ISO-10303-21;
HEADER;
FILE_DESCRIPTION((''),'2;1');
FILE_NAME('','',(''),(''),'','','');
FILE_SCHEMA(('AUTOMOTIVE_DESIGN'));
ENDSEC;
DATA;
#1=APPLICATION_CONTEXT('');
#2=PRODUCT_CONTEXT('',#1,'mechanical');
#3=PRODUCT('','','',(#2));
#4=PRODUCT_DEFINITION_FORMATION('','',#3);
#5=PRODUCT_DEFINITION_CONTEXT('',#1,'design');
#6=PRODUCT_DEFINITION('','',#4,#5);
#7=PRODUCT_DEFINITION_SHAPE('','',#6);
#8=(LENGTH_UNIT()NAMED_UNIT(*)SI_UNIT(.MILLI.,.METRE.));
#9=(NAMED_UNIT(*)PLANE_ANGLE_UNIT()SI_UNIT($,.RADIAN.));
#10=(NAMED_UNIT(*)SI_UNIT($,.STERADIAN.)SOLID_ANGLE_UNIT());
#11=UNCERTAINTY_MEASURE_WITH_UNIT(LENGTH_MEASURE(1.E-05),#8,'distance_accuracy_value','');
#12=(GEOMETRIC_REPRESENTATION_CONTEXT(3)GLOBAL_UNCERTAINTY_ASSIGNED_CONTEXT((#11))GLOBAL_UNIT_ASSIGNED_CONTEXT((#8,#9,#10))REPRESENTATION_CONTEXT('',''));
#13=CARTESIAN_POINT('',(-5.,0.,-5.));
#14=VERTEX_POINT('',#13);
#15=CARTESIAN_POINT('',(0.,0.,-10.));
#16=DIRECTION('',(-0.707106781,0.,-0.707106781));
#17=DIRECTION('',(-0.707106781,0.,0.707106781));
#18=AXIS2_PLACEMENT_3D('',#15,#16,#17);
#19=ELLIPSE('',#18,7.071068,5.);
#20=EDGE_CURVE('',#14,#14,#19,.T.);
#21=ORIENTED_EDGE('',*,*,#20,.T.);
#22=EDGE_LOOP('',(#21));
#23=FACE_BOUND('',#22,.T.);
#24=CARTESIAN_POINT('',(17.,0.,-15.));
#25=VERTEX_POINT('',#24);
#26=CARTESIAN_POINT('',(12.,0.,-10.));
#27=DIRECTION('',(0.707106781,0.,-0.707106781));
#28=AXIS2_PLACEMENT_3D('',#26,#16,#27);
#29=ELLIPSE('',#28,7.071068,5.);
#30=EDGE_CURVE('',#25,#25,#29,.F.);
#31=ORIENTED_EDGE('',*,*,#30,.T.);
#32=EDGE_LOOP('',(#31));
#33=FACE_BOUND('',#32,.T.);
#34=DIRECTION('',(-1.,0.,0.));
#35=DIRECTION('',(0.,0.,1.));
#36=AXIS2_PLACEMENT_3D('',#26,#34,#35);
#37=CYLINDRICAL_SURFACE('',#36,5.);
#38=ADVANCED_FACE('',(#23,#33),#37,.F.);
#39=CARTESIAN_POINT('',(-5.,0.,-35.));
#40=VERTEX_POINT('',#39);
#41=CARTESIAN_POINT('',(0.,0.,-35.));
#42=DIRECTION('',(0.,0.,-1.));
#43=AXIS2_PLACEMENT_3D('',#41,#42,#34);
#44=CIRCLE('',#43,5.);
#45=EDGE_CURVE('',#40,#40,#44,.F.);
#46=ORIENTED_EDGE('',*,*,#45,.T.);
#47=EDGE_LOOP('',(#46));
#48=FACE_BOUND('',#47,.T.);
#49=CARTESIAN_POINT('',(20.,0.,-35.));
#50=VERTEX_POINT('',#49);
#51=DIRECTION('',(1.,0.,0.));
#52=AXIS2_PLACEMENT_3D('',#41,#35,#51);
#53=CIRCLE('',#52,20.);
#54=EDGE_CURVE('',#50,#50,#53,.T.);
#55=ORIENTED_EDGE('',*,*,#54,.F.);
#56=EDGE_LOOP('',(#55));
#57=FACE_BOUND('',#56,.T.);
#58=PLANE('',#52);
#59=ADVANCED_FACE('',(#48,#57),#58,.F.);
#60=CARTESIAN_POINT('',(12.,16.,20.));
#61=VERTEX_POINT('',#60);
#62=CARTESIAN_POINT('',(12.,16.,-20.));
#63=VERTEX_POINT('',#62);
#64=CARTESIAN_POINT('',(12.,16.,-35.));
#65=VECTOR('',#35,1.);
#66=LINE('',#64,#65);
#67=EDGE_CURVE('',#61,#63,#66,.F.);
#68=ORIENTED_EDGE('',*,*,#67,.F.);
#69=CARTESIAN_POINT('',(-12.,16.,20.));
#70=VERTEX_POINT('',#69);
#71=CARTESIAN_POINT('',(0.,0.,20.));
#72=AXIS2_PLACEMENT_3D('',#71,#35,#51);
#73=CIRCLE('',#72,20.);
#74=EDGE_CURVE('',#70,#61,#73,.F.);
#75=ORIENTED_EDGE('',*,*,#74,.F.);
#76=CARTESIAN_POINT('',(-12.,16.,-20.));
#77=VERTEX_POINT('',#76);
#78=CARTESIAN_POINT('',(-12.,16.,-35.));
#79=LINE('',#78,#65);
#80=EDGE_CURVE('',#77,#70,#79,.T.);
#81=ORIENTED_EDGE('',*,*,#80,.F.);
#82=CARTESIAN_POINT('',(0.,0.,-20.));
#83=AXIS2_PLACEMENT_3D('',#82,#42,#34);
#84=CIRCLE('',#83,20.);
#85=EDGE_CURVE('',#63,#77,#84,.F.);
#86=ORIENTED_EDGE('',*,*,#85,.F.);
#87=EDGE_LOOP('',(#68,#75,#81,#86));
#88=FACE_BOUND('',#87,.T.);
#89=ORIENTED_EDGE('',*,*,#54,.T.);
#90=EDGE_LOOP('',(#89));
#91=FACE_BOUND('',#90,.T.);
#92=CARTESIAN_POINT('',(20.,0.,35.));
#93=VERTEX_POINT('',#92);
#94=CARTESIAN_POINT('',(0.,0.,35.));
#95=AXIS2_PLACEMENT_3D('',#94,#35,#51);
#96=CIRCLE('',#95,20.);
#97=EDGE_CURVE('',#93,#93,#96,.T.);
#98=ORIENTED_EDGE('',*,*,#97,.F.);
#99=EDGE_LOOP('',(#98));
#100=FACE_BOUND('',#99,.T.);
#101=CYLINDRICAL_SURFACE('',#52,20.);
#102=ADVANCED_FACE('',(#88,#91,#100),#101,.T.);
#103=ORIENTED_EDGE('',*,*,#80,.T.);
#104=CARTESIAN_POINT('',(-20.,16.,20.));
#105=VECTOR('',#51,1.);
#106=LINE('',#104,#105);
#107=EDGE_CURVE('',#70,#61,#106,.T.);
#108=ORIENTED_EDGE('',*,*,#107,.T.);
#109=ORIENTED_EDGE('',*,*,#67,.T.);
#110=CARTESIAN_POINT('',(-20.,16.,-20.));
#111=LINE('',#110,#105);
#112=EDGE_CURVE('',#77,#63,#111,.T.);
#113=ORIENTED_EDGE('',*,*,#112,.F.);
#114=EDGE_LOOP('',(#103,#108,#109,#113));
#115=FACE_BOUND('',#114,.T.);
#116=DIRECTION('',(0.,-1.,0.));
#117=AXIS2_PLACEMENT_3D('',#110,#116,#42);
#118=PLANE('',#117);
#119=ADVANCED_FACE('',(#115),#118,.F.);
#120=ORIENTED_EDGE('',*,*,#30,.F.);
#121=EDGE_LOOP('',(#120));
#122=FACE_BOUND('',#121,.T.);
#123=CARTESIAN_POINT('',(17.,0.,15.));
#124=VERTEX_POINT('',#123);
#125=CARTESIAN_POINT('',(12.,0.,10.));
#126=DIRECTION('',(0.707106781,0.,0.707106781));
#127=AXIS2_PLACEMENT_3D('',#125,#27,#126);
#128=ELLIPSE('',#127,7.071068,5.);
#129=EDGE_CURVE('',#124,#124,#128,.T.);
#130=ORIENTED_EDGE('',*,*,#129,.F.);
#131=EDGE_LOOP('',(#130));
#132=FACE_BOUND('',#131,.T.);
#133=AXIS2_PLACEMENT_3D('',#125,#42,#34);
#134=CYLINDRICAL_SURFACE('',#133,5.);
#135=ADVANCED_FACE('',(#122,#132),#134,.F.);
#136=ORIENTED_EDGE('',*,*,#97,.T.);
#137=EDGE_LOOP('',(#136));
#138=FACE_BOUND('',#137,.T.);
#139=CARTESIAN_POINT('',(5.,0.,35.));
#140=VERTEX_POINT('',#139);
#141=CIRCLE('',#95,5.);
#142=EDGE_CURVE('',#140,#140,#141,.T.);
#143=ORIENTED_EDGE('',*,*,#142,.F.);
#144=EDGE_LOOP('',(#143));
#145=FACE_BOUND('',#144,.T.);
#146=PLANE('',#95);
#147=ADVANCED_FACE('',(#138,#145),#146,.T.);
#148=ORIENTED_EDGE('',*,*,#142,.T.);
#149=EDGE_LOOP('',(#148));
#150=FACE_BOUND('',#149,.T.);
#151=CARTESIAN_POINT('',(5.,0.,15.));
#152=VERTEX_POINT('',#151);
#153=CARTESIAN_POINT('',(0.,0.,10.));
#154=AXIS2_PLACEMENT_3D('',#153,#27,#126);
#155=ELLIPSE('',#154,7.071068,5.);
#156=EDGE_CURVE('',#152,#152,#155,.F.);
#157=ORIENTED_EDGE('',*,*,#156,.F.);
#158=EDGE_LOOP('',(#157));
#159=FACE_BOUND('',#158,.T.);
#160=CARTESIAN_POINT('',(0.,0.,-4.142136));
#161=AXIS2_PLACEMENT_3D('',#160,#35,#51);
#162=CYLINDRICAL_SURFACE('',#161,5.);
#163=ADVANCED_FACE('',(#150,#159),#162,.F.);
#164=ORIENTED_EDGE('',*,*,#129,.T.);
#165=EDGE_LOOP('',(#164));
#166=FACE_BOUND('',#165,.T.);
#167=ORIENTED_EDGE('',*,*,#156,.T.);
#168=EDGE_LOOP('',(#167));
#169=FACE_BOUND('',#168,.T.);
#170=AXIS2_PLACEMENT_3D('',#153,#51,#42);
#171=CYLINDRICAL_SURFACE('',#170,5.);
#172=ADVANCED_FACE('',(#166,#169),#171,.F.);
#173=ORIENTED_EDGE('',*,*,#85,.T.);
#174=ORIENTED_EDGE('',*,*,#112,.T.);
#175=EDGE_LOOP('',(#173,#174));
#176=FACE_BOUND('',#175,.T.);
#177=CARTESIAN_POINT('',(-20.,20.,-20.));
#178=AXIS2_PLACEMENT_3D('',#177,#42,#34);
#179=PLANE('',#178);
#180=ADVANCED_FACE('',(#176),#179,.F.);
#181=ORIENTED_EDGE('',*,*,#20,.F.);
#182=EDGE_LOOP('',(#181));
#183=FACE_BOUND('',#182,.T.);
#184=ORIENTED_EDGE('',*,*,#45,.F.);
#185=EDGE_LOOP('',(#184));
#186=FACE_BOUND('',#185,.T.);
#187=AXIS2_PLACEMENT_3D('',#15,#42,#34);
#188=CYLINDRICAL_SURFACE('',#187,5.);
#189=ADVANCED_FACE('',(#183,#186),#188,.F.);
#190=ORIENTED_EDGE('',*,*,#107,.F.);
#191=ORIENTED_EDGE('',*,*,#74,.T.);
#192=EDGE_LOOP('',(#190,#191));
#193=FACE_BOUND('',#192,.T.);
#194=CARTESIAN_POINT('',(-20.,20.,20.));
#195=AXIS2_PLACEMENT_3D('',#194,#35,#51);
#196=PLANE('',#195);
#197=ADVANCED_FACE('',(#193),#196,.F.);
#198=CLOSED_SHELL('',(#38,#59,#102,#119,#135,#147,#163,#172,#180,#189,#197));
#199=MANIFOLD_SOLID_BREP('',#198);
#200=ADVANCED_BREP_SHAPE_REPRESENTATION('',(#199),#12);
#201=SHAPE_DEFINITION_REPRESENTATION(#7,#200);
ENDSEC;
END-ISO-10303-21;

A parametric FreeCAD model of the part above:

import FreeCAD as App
import Part
import Sketcher
Q = App.Units.Quantity

doc = App.newDocument("Part")
body = doc.addObject("PartDesign::Body", "Body")

sketch1 = doc.addObject("Sketcher::SketchObject", "Sketch")
body.addObject(sketch1)
sketch1.AttachmentSupport = (doc.XY_Plane, [""])
sketch1.MapMode = "FlatFace"
sketch1.addGeometry(Part.Circle(App.Vector(0, 0, 0), App.Vector(0, 0, 1), 20), False)
sketch1.addConstraint([
    Sketcher.Constraint("Coincident", 0, 3, -1, 1),
    Sketcher.Constraint("Diameter", 0, Q("40 mm")),
])
pad1 = doc.addObject("PartDesign::Pad", "Pad")
body.addObject(pad1)
pad1.Profile = sketch1
pad1.Length = 70
pad1.Midplane = True

sketch2 = doc.addObject("Sketcher::SketchObject", "Sketch001")
body.addObject(sketch2)
sketch2.AttachmentSupport = (doc.XY_Plane, [""])
sketch2.MapMode = "FlatFace"
sketch2.AttachmentOffset = App.Placement(App.Vector(0, 0, 35), App.Rotation())
sketch2.addGeometry(Part.Circle(App.Vector(0, 0, 0), App.Vector(0, 0, 1), 5), False)
sketch2.addConstraint([
    Sketcher.Constraint("Coincident", 0, 3, -1, 1),
    Sketcher.Constraint("Diameter", 0, Q("10 mm")),
])

sketch3 = doc.addObject("Sketcher::SketchObject", "Sketch002")
body.addObject(sketch3)
sketch3.AttachmentSupport = (doc.XZ_Plane, [""])
sketch3.MapMode = "FlatFace"
sketch3.addGeometry([
    Part.LineSegment(App.Vector(0, -35, 0), App.Vector(0, -10, 0)),
    Part.LineSegment(App.Vector(0, -10, 0), App.Vector(12, -10, 0)),
    Part.LineSegment(App.Vector(12, -10, 0), App.Vector(12, 10, 0)),
    Part.LineSegment(App.Vector(12, 10, 0), App.Vector(0, 10, 0)),
    Part.LineSegment(App.Vector(0, 10, 0), App.Vector(0, 35, 0)),
], False)
sketch3.addConstraint([
    Sketcher.Constraint("Coincident", 0, 2, 1, 1),
    Sketcher.Constraint("Coincident", 1, 2, 2, 1),
    Sketcher.Constraint("Coincident", 2, 2, 3, 1),
    Sketcher.Constraint("Coincident", 3, 2, 4, 1),
    Sketcher.Constraint("Vertical", 0),
    Sketcher.Constraint("Horizontal", 1),
    Sketcher.Constraint("Vertical", 2),
    Sketcher.Constraint("Horizontal", 3),
    Sketcher.Constraint("Vertical", 4),
    Sketcher.Constraint("Symmetric", 0, 2, 3, 2, -1, 1),
    Sketcher.Constraint("Symmetric", 0, 1, 4, 2, -1),
    Sketcher.Constraint("DistanceX", 1, 1, 1, 2, Q("12 mm")),
    Sketcher.Constraint("DistanceY", 0, 1, 0, 2, Q("25 mm")),
    Sketcher.Constraint("DistanceY", 2, 1, 2, 2, Q("20 mm")),
])
doc.recompute()

subtractivepipe = doc.addObject("PartDesign::SubtractivePipe", "SubtractivePipe")
body.addObject(subtractivepipe)
subtractivepipe.Profile = sketch2
subtractivepipe.Spine = (sketch3, ["Edge1", "Edge2", "Edge3", "Edge4", "Edge5"])
subtractivepipe.Transition = "Right corner"

sketch4 = doc.addObject("Sketcher::SketchObject", "Sketch003")
body.addObject(sketch4)
sketch4.AttachmentSupport = (doc.YZ_Plane, [""])
sketch4.MapMode = "FlatFace"
sketch4.addGeometry([
    Part.LineSegment(App.Vector(20, 20, 0), App.Vector(16, 20, 0)),
    Part.LineSegment(App.Vector(16, 20, 0), App.Vector(16, -20, 0)),
    Part.LineSegment(App.Vector(16, -20, 0), App.Vector(20, -20, 0)),
    Part.LineSegment(App.Vector(20, -20, 0), App.Vector(20, 20, 0)),
], False)
sketch4.addConstraint([
    Sketcher.Constraint("Coincident", 0, 2, 1, 1),
    Sketcher.Constraint("Coincident", 1, 2, 2, 1),
    Sketcher.Constraint("Coincident", 2, 2, 3, 1),
    Sketcher.Constraint("Coincident", 3, 2, 0, 1),
    Sketcher.Constraint("Horizontal", 0),
    Sketcher.Constraint("Vertical", 1),
    Sketcher.Constraint("Horizontal", 2),
    Sketcher.Constraint("Vertical", 3),
    Sketcher.Constraint("DistanceX", 0, 2, 0, 1, Q("4 mm")),
    Sketcher.Constraint("DistanceY", 1, 2, 1, 1, Q("40 mm")),
    Sketcher.Constraint("DistanceX", -1, 1, 0, 2, Q("16 mm")),
    Sketcher.Constraint("DistanceY", -1, 1, 0, 2, Q("20 mm")),
])
pocket1 = doc.addObject("PartDesign::Pocket", "Pocket")
body.addObject(pocket1)
pocket1.Profile = sketch4
pocket1.Type = "ThroughAll"
pocket1.Midplane = True

doc.recompute()
